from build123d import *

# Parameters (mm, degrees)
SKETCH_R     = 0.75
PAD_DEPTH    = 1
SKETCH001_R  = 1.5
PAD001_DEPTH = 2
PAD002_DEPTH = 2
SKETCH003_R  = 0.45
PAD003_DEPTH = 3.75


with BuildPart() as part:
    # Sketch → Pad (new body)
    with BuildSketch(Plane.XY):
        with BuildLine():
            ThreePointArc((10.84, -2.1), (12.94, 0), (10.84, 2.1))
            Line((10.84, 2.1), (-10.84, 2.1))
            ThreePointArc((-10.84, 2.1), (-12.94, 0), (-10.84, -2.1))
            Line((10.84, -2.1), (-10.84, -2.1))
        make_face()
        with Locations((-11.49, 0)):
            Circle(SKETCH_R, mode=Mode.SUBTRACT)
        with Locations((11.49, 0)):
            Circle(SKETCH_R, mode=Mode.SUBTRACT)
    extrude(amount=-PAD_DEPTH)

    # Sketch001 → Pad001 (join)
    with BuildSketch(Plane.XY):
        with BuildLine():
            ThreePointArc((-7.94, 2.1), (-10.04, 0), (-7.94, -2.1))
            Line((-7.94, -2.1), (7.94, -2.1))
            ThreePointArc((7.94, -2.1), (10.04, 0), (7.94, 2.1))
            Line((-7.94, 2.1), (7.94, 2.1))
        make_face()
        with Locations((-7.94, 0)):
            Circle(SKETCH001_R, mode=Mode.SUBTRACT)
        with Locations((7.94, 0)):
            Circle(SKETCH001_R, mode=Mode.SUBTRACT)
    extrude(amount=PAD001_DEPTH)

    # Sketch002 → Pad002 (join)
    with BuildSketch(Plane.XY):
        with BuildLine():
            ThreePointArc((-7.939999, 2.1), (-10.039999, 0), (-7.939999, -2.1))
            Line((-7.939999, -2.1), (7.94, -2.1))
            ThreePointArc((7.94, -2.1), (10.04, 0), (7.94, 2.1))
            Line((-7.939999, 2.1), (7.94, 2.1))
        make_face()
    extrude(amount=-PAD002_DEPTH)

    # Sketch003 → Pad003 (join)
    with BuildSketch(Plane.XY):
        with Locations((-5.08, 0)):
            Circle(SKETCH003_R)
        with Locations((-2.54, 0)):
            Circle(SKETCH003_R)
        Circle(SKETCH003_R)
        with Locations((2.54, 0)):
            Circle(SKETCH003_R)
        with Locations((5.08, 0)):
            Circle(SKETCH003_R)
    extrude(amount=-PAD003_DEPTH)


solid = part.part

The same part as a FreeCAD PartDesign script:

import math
import FreeCAD as App
import Part
import Sketcher

doc = App.newDocument("Part")
body = doc.addObject("PartDesign::Body", "Body")

# Sketch on XY plane
sketch1 = body.newObject("Sketcher::SketchObject", "Sketch")
sketch1.AttachmentSupport = (doc.getObject("XY_Plane"), [""])
sketch1.MapMode = "FlatFace"
sketch1.addGeometry([
    Part.ArcOfCircle(Part.Circle(App.Vector(10.84, 0, 0), App.Vector(0, 0, 1), 2.1), math.radians(-90), math.radians(90)),  # 0
    Part.LineSegment(App.Vector(10.84, 2.1, 0), App.Vector(-10.84, 2.1, 0)),  # 1
    Part.ArcOfCircle(Part.Circle(App.Vector(-10.84, 0, 0), App.Vector(0, 0, 1), 2.1), math.radians(90), math.radians(270)),  # 2
    Part.LineSegment(App.Vector(-10.84, -2.1, 0), App.Vector(10.84, -2.1, 0)),  # 3
    Part.Circle(App.Vector(-11.49, 0, 0), App.Vector(0, 0, 1), 0.75),  # 4
    Part.Circle(App.Vector(11.49, 0, 0), App.Vector(0, 0, 1), 0.75),  # 5
], False)
sketch1.addConstraint([
    Sketcher.Constraint("Tangent", 0, 2, 1, 1),
    Sketcher.Constraint("Tangent", 1, 2, 2, 1),
    Sketcher.Constraint("Tangent", 2, 2, 3, 1),
    Sketcher.Constraint("Tangent", 3, 2, 0, 1),
    Sketcher.Constraint("Horizontal", 1),
    Sketcher.Constraint("Horizontal", 3),
    Sketcher.Constraint("Equal", 4, 5),
    Sketcher.Constraint("Symmetric", 0, 3, 2, 3, -1, 1),
    Sketcher.Constraint("Symmetric", 4, 3, 5, 3, -1, 1),
    Sketcher.Constraint("PointOnObject", 4, 3, -1),
    Sketcher.Constraint("Diameter", 4, 1.5),
    Sketcher.Constraint("Radius", 0, 2.1),
    Sketcher.Constraint("DistanceX", 1, 2, 1, 1, 21.68),
    Sketcher.Constraint("DistanceX", 4, 3, -1, 1, 11.49),
])
pad1 = body.newObject("PartDesign::Pad", "Pad")
pad1.Profile = sketch1
pad1.Length = 1
pad1.Reversed = True

# Sketch on XY plane
sketch2 = body.newObject("Sketcher::SketchObject", "Sketch001")
sketch2.AttachmentSupport = (doc.getObject("XY_Plane"), [""])
sketch2.MapMode = "FlatFace"
sketch2.addGeometry([
    Part.ArcOfCircle(Part.Circle(App.Vector(-7.94, 0, 0), App.Vector(0, 0, 1), 2.1), math.radians(90), math.radians(270)),  # 0
    Part.LineSegment(App.Vector(-7.94, -2.1, 0), App.Vector(7.94, -2.1, 0)),  # 1
    Part.ArcOfCircle(Part.Circle(App.Vector(7.94, 0, 0), App.Vector(0, 0, 1), 2.1), math.radians(-90), math.radians(90)),  # 2
    Part.LineSegment(App.Vector(7.94, 2.1, 0), App.Vector(-7.94, 2.1, 0)),  # 3
    Part.Circle(App.Vector(-7.94, 0, 0), App.Vector(0, 0, 1), 1.5),  # 4
    Part.Circle(App.Vector(7.94, 0, 0), App.Vector(0, 0, 1), 1.5),  # 5
], False)
sketch2.addConstraint([
    Sketcher.Constraint("Tangent", 0, 2, 1, 1),
    Sketcher.Constraint("Tangent", 1, 2, 2, 1),
    Sketcher.Constraint("Tangent", 2, 2, 3, 1),
    Sketcher.Constraint("Tangent", 3, 2, 0, 1),
    Sketcher.Constraint("Horizontal", 1),
    Sketcher.Constraint("Horizontal", 3),
    Sketcher.Constraint("Coincident", 4, 3, 0, 3),
    Sketcher.Constraint("Coincident", 5, 3, 2, 3),
    Sketcher.Constraint("Equal", 4, 5),
    Sketcher.Constraint("Symmetric", 0, 3, 2, 3, -1, 1),
    Sketcher.Constraint("Diameter", 4, 3.0),
    Sketcher.Constraint("Radius", 0, 2.1),
    Sketcher.Constraint("DistanceX", 1, 1, 1, 2, 15.88),
])
pad2 = body.newObject("PartDesign::Pad", "Pad001")
pad2.Profile = sketch2
pad2.Length = 2

# Sketch on XY plane
sketch3 = body.newObject("Sketcher::SketchObject", "Sketch002")
sketch3.AttachmentSupport = (doc.getObject("XY_Plane"), [""])
sketch3.MapMode = "FlatFace"
sketch3.addGeometry([
    Part.ArcOfCircle(Part.Circle(App.Vector(-7.939999, 0, 0), App.Vector(0, 0, 1), 2.1), math.radians(90), math.radians(270)),
    Part.LineSegment(App.Vector(-7.939999, -2.1, 0), App.Vector(7.94, -2.1, 0)),
    Part.ArcOfCircle(Part.Circle(App.Vector(7.94, 0, 0), App.Vector(0, 0, 1), 2.1), math.radians(-90), math.radians(90)),
    Part.LineSegment(App.Vector(7.94, 2.1, 0), App.Vector(-7.939999, 2.1, 0)),
], False)
sketch3.addConstraint([
    Sketcher.Constraint("Tangent", 0, 2, 1, 1),
    Sketcher.Constraint("Tangent", 1, 2, 2, 1),
    Sketcher.Constraint("Tangent", 2, 2, 3, 1),
    Sketcher.Constraint("Tangent", 3, 2, 0, 1),
    Sketcher.Constraint("Horizontal", 1),
    Sketcher.Constraint("Horizontal", 3),
    Sketcher.Constraint("Symmetric", 0, 3, 2, 3, -1, 1),
    Sketcher.Constraint("Radius", 0, 2.1),
    Sketcher.Constraint("DistanceX", 1, 1, 1, 2, 15.879999),
])
pad3 = body.newObject("PartDesign::Pad", "Pad002")
pad3.Profile = sketch3
pad3.Length = 2
pad3.Reversed = True

# Sketch on XY plane
sketch4 = body.newObject("Sketcher::SketchObject", "Sketch003")
sketch4.AttachmentSupport = (doc.getObject("XY_Plane"), [""])
sketch4.MapMode = "FlatFace"
sketch4.addGeometry([
    Part.Circle(App.Vector(-5.08, 0, 0), App.Vector(0, 0, 1), 0.45),  # 0
    Part.Circle(App.Vector(-2.54, 0, 0), App.Vector(0, 0, 1), 0.45),  # 1
    Part.Circle(App.Vector(0, 0, 0), App.Vector(0, 0, 1), 0.45),  # 2
    Part.Circle(App.Vector(2.54, 0, 0), App.Vector(0, 0, 1), 0.45),  # 3
    Part.Circle(App.Vector(5.08, 0, 0), App.Vector(0, 0, 1), 0.45),  # 4
], False)
sketch4.addConstraint([
    Sketcher.Constraint("Coincident", 2, 3, -1, 1),
    Sketcher.Constraint("Equal", 0, 1),
    Sketcher.Constraint("Equal", 1, 2),
    Sketcher.Constraint("Equal", 2, 3),
    Sketcher.Constraint("Equal", 3, 4),
    Sketcher.Constraint("Symmetric", 1, 3, 3, 3, -1, 1),
    Sketcher.Constraint("Symmetric", 0, 3, 4, 3, -1, 1),
    Sketcher.Constraint("PointOnObject", 0, 3, -1),
    Sketcher.Constraint("PointOnObject", 1, 3, -1),
    Sketcher.Constraint("Diameter", 0, 0.9),
    Sketcher.Constraint("DistanceX", 0, 3, -1, 1, 5.08),
    Sketcher.Constraint("DistanceX", 1, 3, -1, 1, 2.54),
])
pad4 = body.newObject("PartDesign::Pad", "Pad003")
pad4.Profile = sketch4
pad4.Length = 3.75
pad4.Reversed = True

doc.recompute()
